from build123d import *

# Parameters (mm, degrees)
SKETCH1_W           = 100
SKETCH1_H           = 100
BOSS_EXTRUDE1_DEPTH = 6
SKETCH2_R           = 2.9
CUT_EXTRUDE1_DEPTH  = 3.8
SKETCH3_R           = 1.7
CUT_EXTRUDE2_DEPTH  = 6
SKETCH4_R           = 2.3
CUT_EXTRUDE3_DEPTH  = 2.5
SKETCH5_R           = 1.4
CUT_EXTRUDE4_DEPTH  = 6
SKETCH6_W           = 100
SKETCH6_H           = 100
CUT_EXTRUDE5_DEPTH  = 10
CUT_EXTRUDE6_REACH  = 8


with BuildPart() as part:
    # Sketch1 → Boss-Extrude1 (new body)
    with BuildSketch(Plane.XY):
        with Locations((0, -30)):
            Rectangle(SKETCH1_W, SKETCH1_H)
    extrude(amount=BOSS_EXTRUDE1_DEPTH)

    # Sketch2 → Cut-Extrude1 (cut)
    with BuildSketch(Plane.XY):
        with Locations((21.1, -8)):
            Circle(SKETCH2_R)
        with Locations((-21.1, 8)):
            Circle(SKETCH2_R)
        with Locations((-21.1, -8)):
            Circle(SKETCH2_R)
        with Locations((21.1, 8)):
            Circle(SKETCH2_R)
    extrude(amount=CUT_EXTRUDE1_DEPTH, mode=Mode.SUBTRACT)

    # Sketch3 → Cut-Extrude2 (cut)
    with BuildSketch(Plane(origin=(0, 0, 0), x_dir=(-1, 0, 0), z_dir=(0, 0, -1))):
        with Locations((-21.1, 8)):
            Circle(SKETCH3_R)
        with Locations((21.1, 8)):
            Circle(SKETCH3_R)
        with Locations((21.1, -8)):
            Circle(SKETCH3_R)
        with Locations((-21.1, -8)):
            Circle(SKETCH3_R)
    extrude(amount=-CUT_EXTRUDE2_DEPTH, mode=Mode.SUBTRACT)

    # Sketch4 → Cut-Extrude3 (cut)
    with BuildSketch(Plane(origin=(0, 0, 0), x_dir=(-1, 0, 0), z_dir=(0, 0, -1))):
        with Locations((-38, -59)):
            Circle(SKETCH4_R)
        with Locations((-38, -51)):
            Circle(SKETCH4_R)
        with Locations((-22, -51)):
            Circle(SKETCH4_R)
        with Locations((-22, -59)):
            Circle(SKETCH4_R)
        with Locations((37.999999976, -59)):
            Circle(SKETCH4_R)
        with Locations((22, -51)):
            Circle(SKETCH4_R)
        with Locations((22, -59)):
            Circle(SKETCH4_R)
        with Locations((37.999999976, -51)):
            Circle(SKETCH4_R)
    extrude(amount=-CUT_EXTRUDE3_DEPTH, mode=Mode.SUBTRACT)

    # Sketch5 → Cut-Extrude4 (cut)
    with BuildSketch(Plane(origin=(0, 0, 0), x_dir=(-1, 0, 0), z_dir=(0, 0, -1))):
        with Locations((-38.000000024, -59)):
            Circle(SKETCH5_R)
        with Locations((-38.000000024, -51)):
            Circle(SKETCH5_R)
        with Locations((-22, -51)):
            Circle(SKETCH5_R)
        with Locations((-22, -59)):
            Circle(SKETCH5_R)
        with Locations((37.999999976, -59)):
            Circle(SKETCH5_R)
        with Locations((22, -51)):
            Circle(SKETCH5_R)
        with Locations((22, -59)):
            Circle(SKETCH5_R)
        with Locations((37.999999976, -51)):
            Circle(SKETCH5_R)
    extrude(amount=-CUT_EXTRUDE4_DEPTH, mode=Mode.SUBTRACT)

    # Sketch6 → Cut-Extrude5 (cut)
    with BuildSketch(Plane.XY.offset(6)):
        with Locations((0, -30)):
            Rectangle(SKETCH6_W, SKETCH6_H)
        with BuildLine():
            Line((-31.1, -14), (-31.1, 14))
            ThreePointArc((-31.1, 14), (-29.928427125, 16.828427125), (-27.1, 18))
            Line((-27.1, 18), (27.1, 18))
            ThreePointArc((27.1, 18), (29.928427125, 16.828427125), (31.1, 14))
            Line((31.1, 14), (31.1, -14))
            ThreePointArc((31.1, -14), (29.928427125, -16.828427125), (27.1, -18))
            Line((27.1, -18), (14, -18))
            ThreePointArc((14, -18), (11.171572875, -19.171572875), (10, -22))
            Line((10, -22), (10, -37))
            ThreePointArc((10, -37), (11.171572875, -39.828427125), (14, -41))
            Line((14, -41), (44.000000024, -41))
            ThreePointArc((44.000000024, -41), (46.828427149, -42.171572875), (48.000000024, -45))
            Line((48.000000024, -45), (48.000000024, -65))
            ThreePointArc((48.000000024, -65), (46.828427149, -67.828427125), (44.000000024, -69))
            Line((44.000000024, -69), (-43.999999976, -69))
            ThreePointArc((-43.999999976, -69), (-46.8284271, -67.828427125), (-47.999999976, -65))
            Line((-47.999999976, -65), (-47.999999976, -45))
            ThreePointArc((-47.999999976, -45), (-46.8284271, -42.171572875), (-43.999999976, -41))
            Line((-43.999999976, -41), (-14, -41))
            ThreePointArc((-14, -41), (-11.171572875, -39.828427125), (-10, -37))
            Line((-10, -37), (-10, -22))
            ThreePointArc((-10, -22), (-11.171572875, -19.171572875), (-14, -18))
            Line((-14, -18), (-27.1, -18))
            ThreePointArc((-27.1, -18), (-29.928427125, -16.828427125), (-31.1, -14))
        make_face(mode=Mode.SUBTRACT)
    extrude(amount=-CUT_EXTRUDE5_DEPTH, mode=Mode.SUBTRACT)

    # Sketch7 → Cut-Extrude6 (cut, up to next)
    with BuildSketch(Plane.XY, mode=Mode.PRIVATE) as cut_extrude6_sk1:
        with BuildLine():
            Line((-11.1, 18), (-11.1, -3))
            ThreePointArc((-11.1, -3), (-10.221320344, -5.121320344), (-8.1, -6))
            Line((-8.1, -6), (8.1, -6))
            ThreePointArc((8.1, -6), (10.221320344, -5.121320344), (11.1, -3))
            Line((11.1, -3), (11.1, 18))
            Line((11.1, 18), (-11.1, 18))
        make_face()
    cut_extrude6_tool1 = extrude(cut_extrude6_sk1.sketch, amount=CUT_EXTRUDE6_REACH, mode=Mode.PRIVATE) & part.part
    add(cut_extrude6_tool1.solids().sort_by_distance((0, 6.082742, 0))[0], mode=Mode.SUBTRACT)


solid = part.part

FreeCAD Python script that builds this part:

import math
import FreeCAD as App
import Part
import Sketcher

V = App.Vector
Q = App.Units.Quantity

doc = App.newDocument("Part")
body = doc.addObject("PartDesign::Body", "Body")

# Sketch on XY plane
sketch1 = body.newObject("Sketcher::SketchObject", "Sketch")
sketch1.AttachmentSupport = (doc.getObject("XY_Plane"), [""])
sketch1.MapMode = "FlatFace"
sketch1.addGeometry([
    Part.LineSegment(V(-50, 20, 0), V(-50, -80, 0)),
    Part.LineSegment(V(-50, -80, 0), V(50, -80, 0)),
    Part.LineSegment(V(50, -80, 0), V(50, 20, 0)),
    Part.LineSegment(V(50, 20, 0), V(-50, 20, 0)),
], False)
sketch1.addConstraint([
    Sketcher.Constraint("Coincident", 0, 2, 1, 1),
    Sketcher.Constraint("Coincident", 1, 2, 2, 1),
    Sketcher.Constraint("Coincident", 2, 2, 3, 1),
    Sketcher.Constraint("Coincident", 3, 2, 0, 1),
    Sketcher.Constraint("Vertical", 0),
    Sketcher.Constraint("Horizontal", 1),
    Sketcher.Constraint("Vertical", 2),
    Sketcher.Constraint("Horizontal", 3),
    Sketcher.Constraint("Equal", 3, 0),
    Sketcher.Constraint("DistanceX", 1, 1, 1, 2, Q("100 mm")),
    Sketcher.Constraint("DistanceX", 0, 2, -1, 1, Q("50 mm")),
    Sketcher.Constraint("DistanceY", 0, 2, -1, 1, Q("80 mm")),
])
pad1 = body.newObject("PartDesign::Pad", "Pad")
pad1.Profile = sketch1
pad1.Length = 6

# Sketch on XY plane
sketch2 = body.newObject("Sketcher::SketchObject", "Sketch001")
sketch2.AttachmentSupport = (doc.getObject("XY_Plane"), [""])
sketch2.MapMode = "FlatFace"
sketch2.addGeometry([
    Part.Circle(V(21.1, -8, 0), V(0, 0, 1), 2.9),
    Part.Circle(V(-21.1, 8, 0), V(0, 0, 1), 2.9),
    Part.Circle(V(-21.1, -8, 0), V(0, 0, 1), 2.9),
    Part.Circle(V(21.1, 8, 0), V(0, 0, 1), 2.9),
], False)
sketch2.addConstraint([
    Sketcher.Constraint("Equal", 0, 1),
    Sketcher.Constraint("Equal", 1, 2),
    Sketcher.Constraint("Equal", 2, 3),
    Sketcher.Constraint("Symmetric", 0, 3, 1, 3, -1, 1),
    Sketcher.Constraint("Symmetric", 2, 3, 3, 3, -1, 1),
    Sketcher.Constraint("Symmetric", 0, 3, 2, 3, -2),
    Sketcher.Constraint("Diameter", 0, Q("5.8 mm")),
    Sketcher.Constraint("DistanceY", 0, 3, -1, 1, Q("8 mm")),
    Sketcher.Constraint("DistanceX", -1, 1, 0, 3, Q("21.1 mm")),
])
pocket1 = body.newObject("PartDesign::Pocket", "Pocket")
pocket1.Profile = sketch2
pocket1.Length = 3.8
pocket1.Reversed = True

# Sketch on XY plane
sketch3 = body.newObject("Sketcher::SketchObject", "Sketch002")
sketch3.AttachmentSupport = (doc.getObject("XY_Plane"), [""])
sketch3.MapMode = "FlatFace"
sketch3.addGeometry([
    Part.Circle(V(21.1, 8, 0), V(0, 0, 1), 1.7),
    Part.Circle(V(-21.1, 8, 0), V(0, 0, 1), 1.7),
    Part.Circle(V(-21.1, -8, 0), V(0, 0, 1), 1.7),
    Part.Circle(V(21.1, -8, 0), V(0, 0, 1), 1.7),
], False)
sketch3.addConstraint([
    Sketcher.Constraint("Equal", 0, 1),
    Sketcher.Constraint("Equal", 1, 2),
    Sketcher.Constraint("Equal", 2, 3),
    Sketcher.Constraint("Symmetric", 0, 3, 2, 3, -1, 1),
    Sketcher.Constraint("Symmetric", 1, 3, 3, 3, -1, 1),
    Sketcher.Constraint("Symmetric", 0, 3, 1, 3, -2),
    Sketcher.Constraint("Diameter", 0, Q("3.4 mm")),
    Sketcher.Constraint("DistanceY", -1, 1, 0, 3, Q("8 mm")),
    Sketcher.Constraint("DistanceX", -1, 1, 0, 3, Q("21.1 mm")),
])
pocket2 = body.newObject("PartDesign::Pocket", "Pocket001")
pocket2.Profile = sketch3
pocket2.Length = 6
pocket2.Reversed = True

# Sketch on XY plane
sketch4 = body.newObject("Sketcher::SketchObject", "Sketch003")
sketch4.AttachmentSupport = (doc.getObject("XY_Plane"), [""])
sketch4.MapMode = "FlatFace"
sketch4.addGeometry([
    Part.Circle(V(38, -59, 0), V(0, 0, 1), 2.3),  # 0
    Part.Circle(V(38, -51, 0), V(0, 0, 1), 2.3),  # 1
    Part.Circle(V(22, -51, 0), V(0, 0, 1), 2.3),  # 2
    Part.Circle(V(22, -59, 0), V(0, 0, 1), 2.3),  # 3
    Part.Circle(V(-38, -59, 0), V(0, 0, 1), 2.3),  # 4
    Part.Circle(V(-22, -51, 0), V(0, 0, 1), 2.3),  # 5
    Part.Circle(V(-22, -59, 0), V(0, 0, 1), 2.3),  # 6
    Part.Circle(V(-38, -51, 0), V(0, 0, 1), 2.3),  # 7
], False)
sketch4.addConstraint([
    Sketcher.Constraint("Equal", 0, 1),
    Sketcher.Constraint("Equal", 1, 2),
    Sketcher.Constraint("Equal", 2, 3),
    Sketcher.Constraint("Equal", 3, 4),
    Sketcher.Constraint("Equal", 4, 5),
    Sketcher.Constraint("Equal", 5, 6),
    Sketcher.Constraint("Equal", 6, 7),
    Sketcher.Constraint("Symmetric", 0, 3, 4, 3, -2),
    Sketcher.Constraint("Symmetric", 2, 3, 5, 3, -2),
    Sketcher.Constraint("Symmetric", 3, 3, 6, 3, -2),
    Sketcher.Constraint("Symmetric", 1, 3, 7, 3, -2),
    Sketcher.Constraint("Horizontal", 1, 3, 2, 3),
    Sketcher.Constraint("Horizontal", 0, 3, 3, 3),
    Sketcher.Constraint("Vertical", 0, 3, 1, 3),
    Sketcher.Constraint("Vertical", 2, 3, 3, 3),
    Sketcher.Constraint("Diameter", 0, Q("4.6 mm")),
    Sketcher.Constraint("DistanceX", -1, 1, 0, 3, Q("38 mm")),
    Sketcher.Constraint("DistanceY", 0, 3, -1, 1, Q("59 mm")),
    Sketcher.Constraint("DistanceY", 1, 3, -1, 1, Q("51 mm")),
    Sketcher.Constraint("DistanceX", -1, 1, 2, 3, Q("22 mm")),
])
pocket3 = body.newObject("PartDesign::Pocket", "Pocket002")
pocket3.Profile = sketch4
pocket3.Length = 2.5
pocket3.Reversed = True

# Sketch on XY plane
sketch5 = body.newObject("Sketcher::SketchObject", "Sketch004")
sketch5.AttachmentSupport = (doc.getObject("XY_Plane"), [""])
sketch5.MapMode = "FlatFace"
sketch5.addGeometry([
    Part.Circle(V(38, -59, 0), V(0, 0, 1), 1.4),  # 0
    Part.Circle(V(38, -51, 0), V(0, 0, 1), 1.4),  # 1
    Part.Circle(V(22, -51, 0), V(0, 0, 1), 1.4),  # 2
    Part.Circle(V(22, -59, 0), V(0, 0, 1), 1.4),  # 3
    Part.Circle(V(-38, -59, 0), V(0, 0, 1), 1.4),  # 4
    Part.Circle(V(-22, -51, 0), V(0, 0, 1), 1.4),  # 5
    Part.Circle(V(-22, -59, 0), V(0, 0, 1), 1.4),  # 6
    Part.Circle(V(-38, -51, 0), V(0, 0, 1), 1.4),  # 7
], False)
sketch5.addConstraint([
    Sketcher.Constraint("Equal", 0, 1),
    Sketcher.Constraint("Equal", 1, 2),
    Sketcher.Constraint("Equal", 2, 3),
    Sketcher.Constraint("Equal", 3, 4),
    Sketcher.Constraint("Equal", 4, 5),
    Sketcher.Constraint("Equal", 5, 6),
    Sketcher.Constraint("Equal", 6, 7),
    Sketcher.Constraint("Symmetric", 0, 3, 4, 3, -2),
    Sketcher.Constraint("Symmetric", 2, 3, 5, 3, -2),
    Sketcher.Constraint("Symmetric", 3, 3, 6, 3, -2),
    Sketcher.Constraint("Symmetric", 1, 3, 7, 3, -2),
    Sketcher.Constraint("Horizontal", 1, 3, 2, 3),
    Sketcher.Constraint("Horizontal", 0, 3, 3, 3),
    Sketcher.Constraint("Vertical", 0, 3, 1, 3),
    Sketcher.Constraint("Vertical", 2, 3, 3, 3),
    Sketcher.Constraint("Diameter", 0, Q("2.8 mm")),
    Sketcher.Constraint("DistanceX", -1, 1, 0, 3, Q("38 mm")),
    Sketcher.Constraint("DistanceY", 0, 3, -1, 1, Q("59 mm")),
    Sketcher.Constraint("DistanceY", 1, 3, -1, 1, Q("51 mm")),
    Sketcher.Constraint("DistanceX", -1, 1, 2, 3, Q("22 mm")),
])
pocket4 = body.newObject("PartDesign::Pocket", "Pocket003")
pocket4.Profile = sketch5
pocket4.Length = 6
pocket4.Reversed = True

# Sketch on XY plane
sketch6 = body.newObject("Sketcher::SketchObject", "Sketch005")
sketch6.AttachmentSupport = (doc.getObject("XY_Plane"), [""])
sketch6.MapMode = "FlatFace"
sketch6.AttachmentOffset = App.Placement(V(0, 0, 6), App.Rotation())
sketch6.addGeometry([
    Part.LineSegment(V(-50, 20, 0), V(-50, -80, 0)),  # 0
    Part.LineSegment(V(-50, -80, 0), V(50, -80, 0)),  # 1
    Part.LineSegment(V(50, -80, 0), V(50, 20, 0)),  # 2
    Part.LineSegment(V(50, 20, 0), V(-50, 20, 0)),  # 3
    Part.ArcOfCircle(Part.Circle(V(-27.1, -14, 0), V(0, 0, 1), 4), math.radians(180), math.radians(270)),  # 4
    Part.LineSegment(V(-31.1, -14, 0), V(-31.1, 14, 0)),  # 5
    Part.ArcOfCircle(Part.Circle(V(-27.1, 14, 0), V(0, 0, 1), 4), math.radians(90), math.radians(180)),  # 6
    Part.LineSegment(V(-27.1, 18, 0), V(27.1, 18, 0)),  # 7
    Part.ArcOfCircle(Part.Circle(V(27.1, 14, 0), V(0, 0, 1), 4), math.radians(0), math.radians(90)),  # 8
    Part.LineSegment(V(31.1, 14, 0), V(31.1, -14, 0)),  # 9
    Part.ArcOfCircle(Part.Circle(V(27.1, -14, 0), V(0, 0, 1), 4), math.radians(-90), math.radians(0)),  # 10
    Part.LineSegment(V(27.1, -18, 0), V(14, -18, 0)),  # 11
    Part.ArcOfCircle(Part.Circle(V(14, -22, 0), V(0, 0, 1), 4), math.radians(90), math.radians(180)),  # 12
    Part.LineSegment(V(10, -22, 0), V(10, -37, 0)),  # 13
    Part.ArcOfCircle(Part.Circle(V(14, -37, 0), V(0, 0, 1), 4), math.radians(180), math.radians(270)),  # 14
    Part.LineSegment(V(14, -41, 0), V(44, -41, 0)),  # 15
    Part.ArcOfCircle(Part.Circle(V(44, -45, 0), V(0, 0, 1), 4), math.radians(0), math.radians(90)),  # 16
    Part.LineSegment(V(48, -45, 0), V(48, -65, 0)),  # 17
    Part.ArcOfCircle(Part.Circle(V(44, -65, 0), V(0, 0, 1), 4), math.radians(-90), math.radians(0)),  # 18
    Part.LineSegment(V(44, -69, 0), V(-44, -69, 0)),  # 19
    Part.ArcOfCircle(Part.Circle(V(-44, -65, 0), V(0, 0, 1), 4), math.radians(-180), math.radians(-90)),  # 20
    Part.LineSegment(V(-48, -65, 0), V(-48, -45, 0)),  # 21
    Part.ArcOfCircle(Part.Circle(V(-44, -45, 0), V(0, 0, 1), 4), math.radians(90), math.radians(180)),  # 22
    Part.LineSegment(V(-44, -41, 0), V(-14, -41, 0)),  # 23
    Part.ArcOfCircle(Part.Circle(V(-14, -37, 0), V(0, 0, 1), 4), math.radians(-90), math.radians(0)),  # 24
    Part.LineSegment(V(-10, -37, 0), V(-10, -22, 0)),  # 25
    Part.ArcOfCircle(Part.Circle(V(-14, -22, 0), V(0, 0, 1), 4), math.radians(0), math.radians(90)),  # 26
    Part.LineSegment(V(-14, -18, 0), V(-27.1, -18, 0)),  # 27
], False)
sketch6.addConstraint([
    Sketcher.Constraint("Coincident", 0, 2, 1, 1),
    Sketcher.Constraint("Coincident", 1, 2, 2, 1),
    Sketcher.Constraint("Coincident", 2, 2, 3, 1),
    Sketcher.Constraint("Coincident", 3, 2, 0, 1),
    Sketcher.Constraint("Tangent", 4, 1, 5, 1),
    Sketcher.Constraint("Tangent", 5, 2, 6, 2),
    Sketcher.Constraint("Tangent", 6, 1, 7, 1),
    Sketcher.Constraint("Tangent", 7, 2, 8, 2),
    Sketcher.Constraint("Tangent", 8, 1, 9, 1),
    Sketcher.Constraint("Tangent", 9, 2, 10, 2),
    Sketcher.Constraint("Tangent", 10, 1, 11, 1),
    Sketcher.Constraint("Tangent", 11, 2, 12, 1),
    Sketcher.Constraint("Tangent", 12, 2, 13, 1),
    Sketcher.Constraint("Tangent", 13, 2, 14, 1),
    Sketcher.Constraint("Tangent", 14, 2, 15, 1),
    Sketcher.Constraint("Tangent", 15, 2, 16, 2),
    Sketcher.Constraint("Tangent", 16, 1, 17, 1),
    Sketcher.Constraint("Tangent", 17, 2, 18, 2),
    Sketcher.Constraint("Tangent", 18, 1, 19, 1),
    Sketcher.Constraint("Tangent", 19, 2, 20, 2),
    Sketcher.Constraint("Tangent", 20, 1, 21, 1),
    Sketcher.Constraint("Tangent", 21, 2, 22, 2),
    Sketcher.Constraint("Tangent", 22, 1, 23, 1),
    Sketcher.Constraint("Tangent", 23, 2, 24, 1),
    Sketcher.Constraint("Tangent", 24, 2, 25, 1),
    Sketcher.Constraint("Tangent", 25, 2, 26, 1),
    Sketcher.Constraint("Tangent", 26, 2, 27, 1),
    Sketcher.Constraint("Tangent", 27, 2, 4, 2),
    Sketcher.Constraint("Vertical", 0),
    Sketcher.Constraint("Horizontal", 1),
    Sketcher.Constraint("Vertical", 2),
    Sketcher.Constraint("Horizontal", 3),
    Sketcher.Constraint("Vertical", 5),
    Sketcher.Constraint("Horizontal", 7),
    Sketcher.Constraint("Vertical", 9),
    Sketcher.Constraint("Horizontal", 11),
    Sketcher.Constraint("Vertical", 13),
    Sketcher.Constraint("Horizontal", 15),
    Sketcher.Constraint("Vertical", 17),
    Sketcher.Constraint("Horizontal", 19),
    Sketcher.Constraint("Vertical", 21),
    Sketcher.Constraint("Horizontal", 23),
    Sketcher.Constraint("Vertical", 25),
    Sketcher.Constraint("Horizontal", 27),
    Sketcher.Constraint("Equal", 4, 6),
    Sketcher.Constraint("Equal", 6, 8),
    Sketcher.Constraint("Equal", 8, 10),
    Sketcher.Constraint("Equal", 10, 12),
    Sketcher.Constraint("Equal", 12, 14),
    Sketcher.Constraint("Equal", 14, 16),
    Sketcher.Constraint("Equal", 16, 18),
    Sketcher.Constraint("Equal", 18, 20),
    Sketcher.Constraint("Equal", 20, 22),
    Sketcher.Constraint("Equal", 22, 24),
    Sketcher.Constraint("Equal", 24, 26),
    Sketcher.Constraint("Symmetric", 4, 3, 8, 3, -1, 1),
    Sketcher.Constraint("Symmetric", 16, 3, 22, 3, -2),
    Sketcher.Constraint("Symmetric", 12, 3, 26, 3, -2),
    Sketcher.Constraint("Equal", 3, 0),
    Sketcher.Constraint("Radius", 4, Q("4 mm")),
    Sketcher.Constraint("DistanceX", 1, 1, 1, 2, Q("100 mm")),
    Sketcher.Constraint("DistanceX", 15, 1, 15, 2, Q("30 mm")),
    Sketcher.Constraint("DistanceX", 19, 2, 19, 1, Q("88 mm")),
    Sketcher.Constraint("DistanceY", 5, 1, 5, 2, Q("28 mm")),
    Sketcher.Constraint("DistanceY", 13, 2, 13, 1, Q("15 mm")),
    Sketcher.Constraint("DistanceY", 17, 2, 17, 1, Q("20 mm")),
    Sketcher.Constraint("DistanceX", 7, 1, 7, 2, Q("54.2 mm")),
    Sketcher.Constraint("DistanceX", 0, 2, -1, 1, Q("50 mm")),
    Sketcher.Constraint("DistanceY", 0, 2, -1, 1, Q("80 mm")),
])
pocket5 = body.newObject("PartDesign::Pocket", "Pocket004")
pocket5.Profile = sketch6
pocket5.Length = 10

# Sketch on XY plane
sketch7 = body.newObject("Sketcher::SketchObject", "Sketch006")
sketch7.AttachmentSupport = (doc.getObject("XY_Plane"), [""])
sketch7.MapMode = "FlatFace"
sketch7.addGeometry([
    Part.LineSegment(V(-11.1, 18, 0), V(-11.1, -3, 0)),  # 0
    Part.ArcOfCircle(Part.Circle(V(-8.1, -3, 0), V(0, 0, 1), 3), math.radians(180), math.radians(270)),  # 1
    Part.LineSegment(V(-8.1, -6, 0), V(8.1, -6, 0)),  # 2
    Part.ArcOfCircle(Part.Circle(V(8.1, -3, 0), V(0, 0, 1), 3), math.radians(-90), math.radians(0)),  # 3
    Part.LineSegment(V(11.1, -3, 0), V(11.1, 18, 0)),  # 4
    Part.LineSegment(V(11.1, 18, 0), V(-11.1, 18, 0)),  # 5
], False)
sketch7.addConstraint([
    Sketcher.Constraint("Tangent", 0, 2, 1, 1),
    Sketcher.Constraint("Tangent", 1, 2, 2, 1),
    Sketcher.Constraint("Tangent", 2, 2, 3, 1),
    Sketcher.Constraint("Tangent", 3, 2, 4, 1),
    Sketcher.Constraint("Coincident", 4, 2, 5, 1),
    Sketcher.Constraint("Coincident", 5, 2, 0, 1),
    Sketcher.Constraint("Vertical", 0),
    Sketcher.Constraint("Horizontal", 2),
    Sketcher.Constraint("Vertical", 4),
    Sketcher.Constraint("Horizontal", 5),
    Sketcher.Constraint("Equal", 1, 3),
    Sketcher.Constraint("Radius", 1, Q("3 mm")),
    Sketcher.Constraint("DistanceY", 0, 2, 0, 1, Q("21 mm")),
    Sketcher.Constraint("DistanceX", 2, 1, 2, 2, Q("16.2 mm")),
    Sketcher.Constraint("DistanceY", 1, 3, -1, 1, Q("3 mm")),
    Sketcher.Constraint("DistanceX", 1, 3, -1, 1, Q("8.1 mm")),
])
pocket6 = body.newObject("PartDesign::Pocket", "Pocket005")
pocket6.Profile = sketch7
pocket6.Type = "UpToFirst"
pocket6.Reversed = True

doc.recompute()
